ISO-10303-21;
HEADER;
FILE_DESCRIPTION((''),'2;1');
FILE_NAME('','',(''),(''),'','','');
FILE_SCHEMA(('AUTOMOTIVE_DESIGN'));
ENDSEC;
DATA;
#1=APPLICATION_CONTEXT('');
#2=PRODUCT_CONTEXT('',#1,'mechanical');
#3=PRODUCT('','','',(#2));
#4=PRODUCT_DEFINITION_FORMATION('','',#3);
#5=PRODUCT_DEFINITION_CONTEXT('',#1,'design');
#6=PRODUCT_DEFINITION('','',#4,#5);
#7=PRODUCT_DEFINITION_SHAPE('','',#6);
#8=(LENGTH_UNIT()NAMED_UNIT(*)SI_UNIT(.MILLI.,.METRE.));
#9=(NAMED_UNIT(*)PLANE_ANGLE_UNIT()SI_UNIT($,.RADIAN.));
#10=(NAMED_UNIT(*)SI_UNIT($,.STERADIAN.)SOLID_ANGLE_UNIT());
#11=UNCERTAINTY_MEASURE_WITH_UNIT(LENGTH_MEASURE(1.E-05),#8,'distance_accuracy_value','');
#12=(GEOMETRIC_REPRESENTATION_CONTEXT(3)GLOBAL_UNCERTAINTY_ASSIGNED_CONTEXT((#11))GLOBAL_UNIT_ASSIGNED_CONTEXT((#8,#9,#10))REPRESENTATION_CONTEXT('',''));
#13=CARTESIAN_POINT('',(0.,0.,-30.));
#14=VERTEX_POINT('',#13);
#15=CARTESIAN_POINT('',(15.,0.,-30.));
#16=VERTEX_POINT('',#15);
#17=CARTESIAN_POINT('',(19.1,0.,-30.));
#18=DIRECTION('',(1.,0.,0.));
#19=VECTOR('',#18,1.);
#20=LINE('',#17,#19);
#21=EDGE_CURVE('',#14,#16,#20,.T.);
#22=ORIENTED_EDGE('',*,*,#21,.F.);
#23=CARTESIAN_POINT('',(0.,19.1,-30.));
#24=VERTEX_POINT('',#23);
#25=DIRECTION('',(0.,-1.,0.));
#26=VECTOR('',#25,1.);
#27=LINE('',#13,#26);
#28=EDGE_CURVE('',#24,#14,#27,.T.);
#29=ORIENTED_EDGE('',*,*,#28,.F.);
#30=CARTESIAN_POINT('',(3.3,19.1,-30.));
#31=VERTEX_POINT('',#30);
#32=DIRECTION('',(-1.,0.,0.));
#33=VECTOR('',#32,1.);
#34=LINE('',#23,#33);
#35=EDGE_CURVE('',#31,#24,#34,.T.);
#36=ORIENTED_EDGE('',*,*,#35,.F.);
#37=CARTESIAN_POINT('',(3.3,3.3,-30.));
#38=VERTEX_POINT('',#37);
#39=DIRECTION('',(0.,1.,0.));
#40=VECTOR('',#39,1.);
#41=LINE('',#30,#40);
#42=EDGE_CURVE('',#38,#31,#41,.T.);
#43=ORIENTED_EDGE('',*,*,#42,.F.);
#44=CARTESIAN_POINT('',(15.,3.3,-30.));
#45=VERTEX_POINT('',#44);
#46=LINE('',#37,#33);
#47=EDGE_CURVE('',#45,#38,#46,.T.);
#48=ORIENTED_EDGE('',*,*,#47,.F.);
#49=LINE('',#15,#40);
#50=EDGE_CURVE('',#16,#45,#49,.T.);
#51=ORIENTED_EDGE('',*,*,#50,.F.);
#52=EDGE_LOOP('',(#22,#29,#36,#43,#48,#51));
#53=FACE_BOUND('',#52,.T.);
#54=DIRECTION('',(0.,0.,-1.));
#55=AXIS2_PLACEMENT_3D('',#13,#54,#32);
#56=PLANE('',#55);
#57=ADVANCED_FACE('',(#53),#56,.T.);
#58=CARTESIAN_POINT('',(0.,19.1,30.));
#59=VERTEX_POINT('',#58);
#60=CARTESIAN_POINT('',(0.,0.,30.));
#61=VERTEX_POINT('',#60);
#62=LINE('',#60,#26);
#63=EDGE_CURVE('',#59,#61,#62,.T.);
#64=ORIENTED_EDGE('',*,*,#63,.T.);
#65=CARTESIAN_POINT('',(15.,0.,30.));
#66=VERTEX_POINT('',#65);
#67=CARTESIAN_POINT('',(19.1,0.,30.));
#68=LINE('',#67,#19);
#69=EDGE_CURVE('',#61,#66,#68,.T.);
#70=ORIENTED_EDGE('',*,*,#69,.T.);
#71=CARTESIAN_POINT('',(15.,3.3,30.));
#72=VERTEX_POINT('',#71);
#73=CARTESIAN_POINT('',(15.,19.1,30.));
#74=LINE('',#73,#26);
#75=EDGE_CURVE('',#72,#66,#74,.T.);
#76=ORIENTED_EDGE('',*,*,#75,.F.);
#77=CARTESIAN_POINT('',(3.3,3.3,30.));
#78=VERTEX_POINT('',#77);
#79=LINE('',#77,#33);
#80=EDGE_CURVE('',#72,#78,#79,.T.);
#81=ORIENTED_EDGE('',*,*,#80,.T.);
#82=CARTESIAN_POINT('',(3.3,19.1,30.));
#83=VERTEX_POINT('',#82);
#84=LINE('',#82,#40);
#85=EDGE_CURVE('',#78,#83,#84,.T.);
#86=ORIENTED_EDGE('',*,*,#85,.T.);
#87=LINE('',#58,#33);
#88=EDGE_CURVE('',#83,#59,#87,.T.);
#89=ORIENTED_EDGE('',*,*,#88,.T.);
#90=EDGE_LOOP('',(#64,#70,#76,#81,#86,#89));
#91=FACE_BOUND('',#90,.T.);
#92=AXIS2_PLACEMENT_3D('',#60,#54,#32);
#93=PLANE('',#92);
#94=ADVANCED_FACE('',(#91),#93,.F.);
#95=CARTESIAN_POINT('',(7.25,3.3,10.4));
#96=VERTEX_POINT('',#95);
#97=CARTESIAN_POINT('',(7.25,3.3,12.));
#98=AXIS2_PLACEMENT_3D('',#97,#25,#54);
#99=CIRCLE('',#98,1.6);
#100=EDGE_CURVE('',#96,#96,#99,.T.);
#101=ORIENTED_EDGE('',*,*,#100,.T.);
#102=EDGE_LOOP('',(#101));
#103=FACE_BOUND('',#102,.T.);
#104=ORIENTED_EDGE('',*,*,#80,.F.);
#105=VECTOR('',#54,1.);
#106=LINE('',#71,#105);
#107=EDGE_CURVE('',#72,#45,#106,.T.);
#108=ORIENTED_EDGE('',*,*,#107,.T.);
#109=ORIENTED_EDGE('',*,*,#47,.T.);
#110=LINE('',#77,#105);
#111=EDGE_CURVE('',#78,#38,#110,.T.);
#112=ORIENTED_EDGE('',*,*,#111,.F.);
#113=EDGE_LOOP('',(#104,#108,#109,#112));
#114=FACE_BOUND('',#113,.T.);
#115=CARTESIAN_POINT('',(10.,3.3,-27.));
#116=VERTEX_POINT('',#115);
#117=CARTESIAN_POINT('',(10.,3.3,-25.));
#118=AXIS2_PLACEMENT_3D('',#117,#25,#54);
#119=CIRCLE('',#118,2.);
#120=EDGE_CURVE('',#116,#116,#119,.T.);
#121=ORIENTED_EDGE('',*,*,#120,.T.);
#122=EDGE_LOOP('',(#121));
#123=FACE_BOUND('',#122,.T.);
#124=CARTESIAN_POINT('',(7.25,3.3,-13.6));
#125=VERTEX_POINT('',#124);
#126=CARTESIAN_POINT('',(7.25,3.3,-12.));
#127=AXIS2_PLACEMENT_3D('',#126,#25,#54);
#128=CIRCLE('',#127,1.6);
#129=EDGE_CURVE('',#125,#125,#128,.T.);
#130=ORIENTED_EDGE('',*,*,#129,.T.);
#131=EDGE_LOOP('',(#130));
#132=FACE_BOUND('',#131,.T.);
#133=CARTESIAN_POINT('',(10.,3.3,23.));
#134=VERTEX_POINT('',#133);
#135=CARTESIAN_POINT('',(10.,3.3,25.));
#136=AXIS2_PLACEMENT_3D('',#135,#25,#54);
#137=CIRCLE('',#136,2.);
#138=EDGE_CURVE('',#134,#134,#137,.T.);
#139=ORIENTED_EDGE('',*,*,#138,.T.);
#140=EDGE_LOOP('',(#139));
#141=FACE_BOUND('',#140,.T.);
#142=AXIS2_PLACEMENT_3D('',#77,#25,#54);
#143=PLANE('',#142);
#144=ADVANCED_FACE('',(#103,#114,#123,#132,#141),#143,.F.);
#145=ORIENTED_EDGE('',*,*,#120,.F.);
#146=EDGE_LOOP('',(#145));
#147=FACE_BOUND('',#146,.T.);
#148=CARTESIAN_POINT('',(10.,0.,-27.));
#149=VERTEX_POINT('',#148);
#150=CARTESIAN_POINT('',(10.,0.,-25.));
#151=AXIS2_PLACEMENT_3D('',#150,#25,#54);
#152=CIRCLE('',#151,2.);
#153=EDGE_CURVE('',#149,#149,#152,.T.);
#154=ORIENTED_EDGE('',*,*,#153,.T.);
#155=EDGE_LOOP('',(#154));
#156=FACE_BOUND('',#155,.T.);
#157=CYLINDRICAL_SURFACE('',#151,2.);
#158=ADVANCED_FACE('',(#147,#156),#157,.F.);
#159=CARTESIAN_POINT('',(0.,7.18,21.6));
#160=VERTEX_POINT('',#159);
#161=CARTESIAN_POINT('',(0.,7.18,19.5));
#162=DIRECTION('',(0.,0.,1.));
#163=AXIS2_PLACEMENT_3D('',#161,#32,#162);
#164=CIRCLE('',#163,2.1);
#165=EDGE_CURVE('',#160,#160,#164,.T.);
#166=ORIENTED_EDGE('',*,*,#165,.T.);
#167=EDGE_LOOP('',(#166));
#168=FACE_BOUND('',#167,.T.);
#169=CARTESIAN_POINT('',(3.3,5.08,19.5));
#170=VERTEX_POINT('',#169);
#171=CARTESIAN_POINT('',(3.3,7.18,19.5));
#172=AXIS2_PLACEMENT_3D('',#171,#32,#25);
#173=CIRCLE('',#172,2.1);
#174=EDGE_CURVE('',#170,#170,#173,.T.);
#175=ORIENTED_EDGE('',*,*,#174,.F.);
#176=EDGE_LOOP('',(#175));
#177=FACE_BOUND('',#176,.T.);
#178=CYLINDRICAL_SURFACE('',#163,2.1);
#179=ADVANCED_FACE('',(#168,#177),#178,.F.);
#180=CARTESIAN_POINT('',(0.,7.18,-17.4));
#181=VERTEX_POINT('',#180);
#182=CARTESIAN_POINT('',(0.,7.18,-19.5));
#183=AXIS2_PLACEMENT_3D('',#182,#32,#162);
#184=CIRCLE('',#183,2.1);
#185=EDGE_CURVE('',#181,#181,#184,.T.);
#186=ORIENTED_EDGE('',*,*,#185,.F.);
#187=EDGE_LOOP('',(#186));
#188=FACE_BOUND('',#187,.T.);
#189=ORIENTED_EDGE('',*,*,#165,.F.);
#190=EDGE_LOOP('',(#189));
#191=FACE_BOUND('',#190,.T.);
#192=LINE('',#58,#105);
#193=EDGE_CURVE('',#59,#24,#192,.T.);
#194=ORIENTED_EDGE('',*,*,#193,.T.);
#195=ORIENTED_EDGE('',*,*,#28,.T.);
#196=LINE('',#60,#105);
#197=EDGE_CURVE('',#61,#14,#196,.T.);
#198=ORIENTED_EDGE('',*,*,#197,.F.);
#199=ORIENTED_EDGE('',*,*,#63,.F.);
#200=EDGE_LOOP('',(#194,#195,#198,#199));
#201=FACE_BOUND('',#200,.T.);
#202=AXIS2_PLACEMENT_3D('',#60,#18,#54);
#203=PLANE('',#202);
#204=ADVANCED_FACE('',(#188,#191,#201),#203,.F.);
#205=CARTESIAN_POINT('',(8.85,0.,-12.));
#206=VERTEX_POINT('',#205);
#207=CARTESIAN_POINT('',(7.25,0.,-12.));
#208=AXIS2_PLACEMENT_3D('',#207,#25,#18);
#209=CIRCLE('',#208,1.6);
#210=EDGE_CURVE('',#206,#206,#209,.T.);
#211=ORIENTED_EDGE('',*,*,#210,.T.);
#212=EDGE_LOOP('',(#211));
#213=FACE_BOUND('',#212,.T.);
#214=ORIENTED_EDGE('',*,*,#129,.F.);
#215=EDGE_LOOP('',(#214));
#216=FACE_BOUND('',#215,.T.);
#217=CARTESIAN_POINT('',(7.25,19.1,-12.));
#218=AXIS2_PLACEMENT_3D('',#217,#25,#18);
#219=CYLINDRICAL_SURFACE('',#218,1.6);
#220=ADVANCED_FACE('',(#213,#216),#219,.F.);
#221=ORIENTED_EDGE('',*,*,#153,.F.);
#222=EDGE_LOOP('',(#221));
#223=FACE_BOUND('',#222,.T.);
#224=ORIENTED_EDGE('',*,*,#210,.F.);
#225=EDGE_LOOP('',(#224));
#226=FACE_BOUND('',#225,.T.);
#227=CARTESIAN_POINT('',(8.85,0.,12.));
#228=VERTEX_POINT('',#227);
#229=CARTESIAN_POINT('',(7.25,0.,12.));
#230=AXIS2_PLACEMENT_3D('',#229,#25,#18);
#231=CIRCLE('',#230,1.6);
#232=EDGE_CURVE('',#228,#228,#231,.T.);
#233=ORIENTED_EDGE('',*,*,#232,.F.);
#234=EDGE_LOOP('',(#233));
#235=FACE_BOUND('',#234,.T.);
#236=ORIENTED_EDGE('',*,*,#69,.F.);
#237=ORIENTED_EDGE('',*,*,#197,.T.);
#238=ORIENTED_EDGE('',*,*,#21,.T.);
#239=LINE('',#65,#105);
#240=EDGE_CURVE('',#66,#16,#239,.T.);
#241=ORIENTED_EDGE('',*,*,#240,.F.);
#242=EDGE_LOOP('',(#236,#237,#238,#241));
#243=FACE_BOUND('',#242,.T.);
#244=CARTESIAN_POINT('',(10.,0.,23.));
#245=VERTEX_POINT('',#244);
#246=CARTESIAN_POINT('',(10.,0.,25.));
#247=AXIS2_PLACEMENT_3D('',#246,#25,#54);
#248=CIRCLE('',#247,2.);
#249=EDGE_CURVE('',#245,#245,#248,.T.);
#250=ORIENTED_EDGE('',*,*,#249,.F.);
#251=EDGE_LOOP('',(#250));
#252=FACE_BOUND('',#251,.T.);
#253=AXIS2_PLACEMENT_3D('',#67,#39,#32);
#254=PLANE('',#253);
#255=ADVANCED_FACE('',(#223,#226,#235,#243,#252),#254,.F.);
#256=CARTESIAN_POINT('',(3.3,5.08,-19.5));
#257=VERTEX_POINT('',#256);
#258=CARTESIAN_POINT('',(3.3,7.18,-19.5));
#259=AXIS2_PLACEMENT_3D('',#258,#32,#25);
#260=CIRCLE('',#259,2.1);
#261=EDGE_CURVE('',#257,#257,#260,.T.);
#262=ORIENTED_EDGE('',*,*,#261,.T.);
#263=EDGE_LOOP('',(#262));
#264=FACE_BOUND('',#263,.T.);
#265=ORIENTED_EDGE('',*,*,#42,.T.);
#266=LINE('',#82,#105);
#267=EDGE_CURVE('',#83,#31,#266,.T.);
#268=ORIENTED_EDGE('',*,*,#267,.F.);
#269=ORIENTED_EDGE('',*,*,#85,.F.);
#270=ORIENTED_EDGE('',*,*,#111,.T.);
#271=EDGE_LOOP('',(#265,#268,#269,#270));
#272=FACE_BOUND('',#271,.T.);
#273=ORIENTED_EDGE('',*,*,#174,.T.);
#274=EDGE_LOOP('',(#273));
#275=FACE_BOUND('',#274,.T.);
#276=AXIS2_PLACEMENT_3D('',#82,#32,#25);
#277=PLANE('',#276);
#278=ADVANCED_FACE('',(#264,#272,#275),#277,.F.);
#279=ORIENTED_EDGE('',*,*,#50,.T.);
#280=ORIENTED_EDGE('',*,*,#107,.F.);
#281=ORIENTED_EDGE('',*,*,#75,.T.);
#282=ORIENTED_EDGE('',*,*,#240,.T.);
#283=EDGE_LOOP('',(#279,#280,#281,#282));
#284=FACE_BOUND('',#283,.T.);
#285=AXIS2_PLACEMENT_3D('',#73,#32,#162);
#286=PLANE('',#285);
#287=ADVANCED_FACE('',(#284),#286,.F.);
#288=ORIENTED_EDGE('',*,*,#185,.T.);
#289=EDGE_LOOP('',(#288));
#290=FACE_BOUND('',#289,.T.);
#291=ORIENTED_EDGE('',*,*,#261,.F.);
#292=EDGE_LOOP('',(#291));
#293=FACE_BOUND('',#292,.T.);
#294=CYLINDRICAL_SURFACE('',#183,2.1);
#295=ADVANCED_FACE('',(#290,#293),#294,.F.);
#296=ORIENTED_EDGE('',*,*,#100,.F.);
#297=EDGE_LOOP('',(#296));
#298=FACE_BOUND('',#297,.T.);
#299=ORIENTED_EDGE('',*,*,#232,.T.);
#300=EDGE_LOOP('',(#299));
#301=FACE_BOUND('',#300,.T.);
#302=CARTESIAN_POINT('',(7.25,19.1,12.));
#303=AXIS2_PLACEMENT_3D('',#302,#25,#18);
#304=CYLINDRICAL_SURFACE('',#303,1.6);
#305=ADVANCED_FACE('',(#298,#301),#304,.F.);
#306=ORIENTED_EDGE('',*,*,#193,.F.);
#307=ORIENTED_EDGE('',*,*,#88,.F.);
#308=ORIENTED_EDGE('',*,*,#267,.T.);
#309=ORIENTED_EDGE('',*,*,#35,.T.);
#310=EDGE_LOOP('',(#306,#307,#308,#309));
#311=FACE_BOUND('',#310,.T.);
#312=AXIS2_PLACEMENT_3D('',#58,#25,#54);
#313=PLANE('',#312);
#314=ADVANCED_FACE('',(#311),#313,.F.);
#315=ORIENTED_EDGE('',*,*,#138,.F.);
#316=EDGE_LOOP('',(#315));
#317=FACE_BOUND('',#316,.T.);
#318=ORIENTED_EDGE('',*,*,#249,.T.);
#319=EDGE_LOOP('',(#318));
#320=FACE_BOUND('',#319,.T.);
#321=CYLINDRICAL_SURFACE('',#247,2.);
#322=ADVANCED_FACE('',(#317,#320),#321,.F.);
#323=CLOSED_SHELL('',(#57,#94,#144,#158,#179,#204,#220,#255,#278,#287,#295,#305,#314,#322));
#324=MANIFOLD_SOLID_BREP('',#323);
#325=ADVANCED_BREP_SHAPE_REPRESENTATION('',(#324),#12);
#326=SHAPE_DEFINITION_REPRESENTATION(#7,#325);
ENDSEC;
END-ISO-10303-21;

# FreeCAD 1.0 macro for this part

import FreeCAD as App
import Part
import Sketcher

doc = App.newDocument("Part")
body = doc.addObject("PartDesign::Body", "Body")

sketch1 = body.newObject("Sketcher::SketchObject", "Sketch")
sketch1.AttachmentSupport = (doc.getObject("XY_Plane"), [""])
sketch1.MapMode = "FlatFace"
sketch1.addGeometry([
    Part.LineSegment(App.Vector(0, 19.1, 0), App.Vector(0, 0, 0)),
    Part.LineSegment(App.Vector(0, 0, 0), App.Vector(19.1, 0, 0)),
    Part.LineSegment(App.Vector(19.1, 0, 0), App.Vector(19.1, 3.3, 0)),
    Part.LineSegment(App.Vector(19.1, 3.3, 0), App.Vector(3.3, 3.3, 0)),
    Part.LineSegment(App.Vector(3.3, 3.3, 0), App.Vector(3.3, 19.1, 0)),
    Part.LineSegment(App.Vector(3.3, 19.1, 0), App.Vector(0, 19.1, 0)),
], False)
sketch1.addConstraint([
    Sketcher.Constraint("Coincident", 0, 2, 1, 1),
    Sketcher.Constraint("Coincident", 1, 2, 2, 1),
    Sketcher.Constraint("Coincident", 2, 2, 3, 1),
    Sketcher.Constraint("Coincident", 3, 2, 4, 1),
    Sketcher.Constraint("Coincident", 4, 2, 5, 1),
    Sketcher.Constraint("Coincident", 5, 2, 0, 1),
    Sketcher.Constraint("Vertical", 0),
    Sketcher.Constraint("Horizontal", 1),
    Sketcher.Constraint("Vertical", 2),
    Sketcher.Constraint("Horizontal", 3),
    Sketcher.Constraint("Vertical", 4),
    Sketcher.Constraint("Horizontal", 5),
    Sketcher.Constraint("Coincident", 0, 2, -1, 1),
    Sketcher.Constraint("Equal", 1, 0),
    Sketcher.Constraint("Equal", 5, 2),
    Sketcher.Constraint("DistanceX", 1, 1, 1, 2, 19.1),
    Sketcher.Constraint("DistanceX", 3, 2, 3, 1, 15.8),
])
pad1 = body.newObject("PartDesign::Pad", "Pad")
pad1.Profile = sketch1
pad1.Length = 60
pad1.Midplane = True

sketch2 = body.newObject("Sketcher::SketchObject", "Sketch001")
sketch2.AttachmentSupport = (doc.getObject("XZ_Plane"), [""])
sketch2.MapMode = "FlatFace"
sketch2.addGeometry([
    Part.LineSegment(App.Vector(15, 30, 0), App.Vector(15, -30, 0)),
    Part.LineSegment(App.Vector(15, -30, 0), App.Vector(19.1, -30, 0)),
    Part.LineSegment(App.Vector(19.1, -30, 0), App.Vector(19.1, 30, 0)),
    Part.LineSegment(App.Vector(19.1, 30, 0), App.Vector(15, 30, 0)),
], False)
sketch2.addConstraint([
    Sketcher.Constraint("Coincident", 0, 2, 1, 1),
    Sketcher.Constraint("Coincident", 1, 2, 2, 1),
    Sketcher.Constraint("Coincident", 2, 2, 3, 1),
    Sketcher.Constraint("Coincident", 3, 2, 0, 1),
    Sketcher.Constraint("Vertical", 0),
    Sketcher.Constraint("Horizontal", 1),
    Sketcher.Constraint("Vertical", 2),
    Sketcher.Constraint("Horizontal", 3),
    Sketcher.Constraint("DistanceY", 0, 2, 0, 1, 60.0),
    Sketcher.Constraint("DistanceX", 1, 1, 1, 2, 4.1),
    Sketcher.Constraint("DistanceX", -1, 1, 0, 2, 15.0),
    Sketcher.Constraint("DistanceY", 0, 2, -1, 1, 30.0),
])
pocket1 = body.newObject("PartDesign::Pocket", "Pocket")
pocket1.Profile = sketch2
pocket1.Type = "ThroughAll"

sketch3 = body.newObject("Sketcher::SketchObject", "Sketch002")
sketch3.AttachmentSupport = (doc.getObject("YZ_Plane"), [""])
sketch3.MapMode = "FlatFace"
sketch3.addGeometry([
    Part.Circle(App.Vector(7.2, -19.5, 0), App.Vector(0, 0, 1), 2.1),
    Part.Circle(App.Vector(7.2, 19.5, 0), App.Vector(0, 0, 1), 2.1),
], False)
sketch3.addConstraint([
    Sketcher.Constraint("Equal", 0, 1),
    Sketcher.Constraint("Symmetric", 0, 3, 1, 3, -1),
    Sketcher.Constraint("Diameter", 0, 4.2),
    Sketcher.Constraint("DistanceY", 0, 3, 1, 3, 39.0),
    Sketcher.Constraint("DistanceX", -1, 1, 0, 3, 7.18),
])
doc.recompute()
hole = body.newObject("PartDesign::Hole", "Hole")
hole.Profile = sketch3
hole.ThreadType = "None"
hole.Diameter = 4.2
hole.DepthType = "ThroughAll"
hole.Reversed = True

sketch4 = body.newObject("Sketcher::SketchObject", "Sketch003")
sketch4.AttachmentSupport = (doc.getObject("XZ_Plane"), [""])
sketch4.MapMode = "FlatFace"
sketch4.addGeometry([
    Part.Circle(App.Vector(10, 25, 0), App.Vector(0, 0, 1), 2),
    Part.Circle(App.Vector(10, -25, 0), App.Vector(0, 0, 1), 2),
], False)
sketch4.addConstraint([
    Sketcher.Constraint("Equal", 0, 1),
    Sketcher.Constraint("Symmetric", 0, 3, 1, 3, -1),
    Sketcher.Constraint("Diameter", 0, 4.0),
    Sketcher.Constraint("DistanceX", -1, 1, 0, 3, 10.0),
    Sketcher.Constraint("DistanceY", -1, 1, 0, 3, 25.0),
])
doc.recompute()
hole2 = body.newObject("PartDesign::Hole", "Hole001")
hole2.Profile = sketch4
hole2.ThreadType = "None"
hole2.Diameter = 4
hole2.DepthType = "Dimension"
hole2.Depth = 3.3
hole2.DrillPoint = "Flat"

sketch5 = body.newObject("Sketcher::SketchObject", "Sketch004")
sketch5.AttachmentSupport = (doc.getObject("XZ_Plane"), [""])
sketch5.MapMode = "FlatFace"
sketch5.addGeometry([
    Part.Circle(App.Vector(7.2, -12, 0), App.Vector(0, 0, 1), 1.6),
    Part.Circle(App.Vector(7.2, 12, 0), App.Vector(0, 0, 1), 1.6),
], False)
sketch5.addConstraint([
    Sketcher.Constraint("Equal", 0, 1),
    Sketcher.Constraint("Symmetric", 0, 3, 1, 3, -1),
    Sketcher.Constraint("Diameter", 0, 3.2),
    Sketcher.Constraint("DistanceY", 0, 3, -1, 1, 12.0),
    Sketcher.Constraint("DistanceX", -1, 1, 0, 3, 7.25),
])
pocket2 = body.newObject("PartDesign::Pocket", "Pocket001")
pocket2.Profile = sketch5
pocket2.Type = "ThroughAll"

doc.recompute()
